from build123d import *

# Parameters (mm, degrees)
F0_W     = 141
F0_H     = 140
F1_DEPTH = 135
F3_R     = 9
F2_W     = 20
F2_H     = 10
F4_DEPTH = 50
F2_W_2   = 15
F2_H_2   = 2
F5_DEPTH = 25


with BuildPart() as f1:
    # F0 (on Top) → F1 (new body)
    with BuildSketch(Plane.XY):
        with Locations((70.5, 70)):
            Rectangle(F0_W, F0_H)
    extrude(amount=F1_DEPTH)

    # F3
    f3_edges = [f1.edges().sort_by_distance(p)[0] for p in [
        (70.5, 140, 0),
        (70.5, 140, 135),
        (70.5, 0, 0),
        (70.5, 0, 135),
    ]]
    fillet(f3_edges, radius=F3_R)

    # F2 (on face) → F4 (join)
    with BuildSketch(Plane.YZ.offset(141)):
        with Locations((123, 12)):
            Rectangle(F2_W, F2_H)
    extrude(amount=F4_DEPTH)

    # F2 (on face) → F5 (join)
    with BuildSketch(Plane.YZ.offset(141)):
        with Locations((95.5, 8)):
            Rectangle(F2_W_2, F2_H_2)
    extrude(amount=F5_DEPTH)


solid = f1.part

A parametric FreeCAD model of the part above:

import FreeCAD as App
import Part
import Sketcher
Q = App.Units.Quantity


def edges_at(feature, points):
    """Names of the edges that pass closest to the given points."""
    edges = feature.Shape.Edges
    near = lambda p: min(range(len(edges)), key=lambda i: edges[i].distToShape(Part.Vertex(*p))[0])
    return sorted({f"Edge{near(p) + 1}" for p in points})


def add_polygon(sketch, points):
    """Adds a closed chain of lines whose ends are joined by coincident constraints."""
    first, n = sketch.GeometryCount, len(points)
    for a, b in zip(points, points[1:] + points[:1]):
        sketch.addGeometry(Part.LineSegment(App.Vector(*a, 0), App.Vector(*b, 0)), False)
    for i in range(n):
        sketch.addConstraint(Sketcher.Constraint("Coincident", first + i, 2, first + (i + 1) % n, 1))

doc = App.newDocument("Part")
body = doc.addObject("PartDesign::Body", "Body")

# Sketch on XY plane
sketch1 = body.newObject("Sketcher::SketchObject", "Sketch")
sketch1.AttachmentSupport = (doc.getObject("XY_Plane"), [""])
sketch1.MapMode = "FlatFace"
add_polygon(sketch1, [(0, 140), (0, 0), (141, 0), (141, 140)])  # lines 0-3
sketch1.addConstraint(Sketcher.Constraint("Vertical", 0))
sketch1.addConstraint(Sketcher.Constraint("Horizontal", 1))
sketch1.addConstraint(Sketcher.Constraint("Vertical", 2))
sketch1.addConstraint(Sketcher.Constraint("Horizontal", 3))
sketch1.addConstraint(Sketcher.Constraint("Coincident", 0, 2, -1, 1))
sketch1.addConstraint(Sketcher.Constraint("DistanceX", 1, 1, 1, 2, Q("141 mm")))
sketch1.addConstraint(Sketcher.Constraint("DistanceY", 0, 2, 0, 1, Q("140 mm")))
pad1 = body.newObject("PartDesign::Pad", "Pad")
pad1.Profile = sketch1
pad1.Length = 135
doc.recompute()

fillet = body.newObject("PartDesign::Fillet", "Fillet")
fillet.Base = (pad1, edges_at(pad1, [
    (70.5, 140, 0),
    (70.5, 140, 135),
    (70.5, 0, 0),
    (70.5, 0, 135),
]))
fillet.Radius = 9

# Sketch on YZ plane
sketch2 = body.newObject("Sketcher::SketchObject", "Sketch001")
sketch2.AttachmentSupport = (doc.getObject("YZ_Plane"), [""])
sketch2.MapMode = "FlatFace"
sketch2.AttachmentOffset = App.Placement(App.Vector(0, 0, 141), App.Rotation())
add_polygon(sketch2, [(113, 17), (113, 7), (133, 7), (133, 17)])  # lines 0-3
sketch2.addConstraint(Sketcher.Constraint("Vertical", 0))
sketch2.addConstraint(Sketcher.Constraint("Horizontal", 1))
sketch2.addConstraint(Sketcher.Constraint("Vertical", 2))
sketch2.addConstraint(Sketcher.Constraint("Horizontal", 3))
sketch2.addConstraint(Sketcher.Constraint("DistanceX", 1, 1, 1, 2, Q("20 mm")))
sketch2.addConstraint(Sketcher.Constraint("DistanceY", 0, 2, 0, 1, Q("10 mm")))
sketch2.addConstraint(Sketcher.Constraint("DistanceX", -1, 1, 0, 2, Q("113 mm")))
sketch2.addConstraint(Sketcher.Constraint("DistanceY", -1, 1, 0, 2, Q("7 mm")))
pad2 = body.newObject("PartDesign::Pad", "Pad001")
pad2.Profile = sketch2
pad2.Length = 50

# Sketch on YZ plane
sketch3 = body.newObject("Sketcher::SketchObject", "Sketch002")
sketch3.AttachmentSupport = (doc.getObject("YZ_Plane"), [""])
sketch3.MapMode = "FlatFace"
sketch3.AttachmentOffset = App.Placement(App.Vector(0, 0, 141), App.Rotation())
add_polygon(sketch3, [(88, 9), (88, 7), (103, 7), (103, 9)])  # lines 0-3
sketch3.addConstraint(Sketcher.Constraint("Vertical", 0))
sketch3.addConstraint(Sketcher.Constraint("Horizontal", 1))
sketch3.addConstraint(Sketcher.Constraint("Vertical", 2))
sketch3.addConstraint(Sketcher.Constraint("Horizontal", 3))
sketch3.addConstraint(Sketcher.Constraint("DistanceX", 1, 1, 1, 2, Q("15 mm")))
sketch3.addConstraint(Sketcher.Constraint("DistanceY", 0, 2, 0, 1, Q("2 mm")))
sketch3.addConstraint(Sketcher.Constraint("DistanceX", -1, 1, 0, 2, Q("88 mm")))
sketch3.addConstraint(Sketcher.Constraint("DistanceY", -1, 1, 0, 2, Q("7 mm")))
pad3 = body.newObject("PartDesign::Pad", "Pad002")
pad3.Profile = sketch3
pad3.Length = 25

doc.recompute()
